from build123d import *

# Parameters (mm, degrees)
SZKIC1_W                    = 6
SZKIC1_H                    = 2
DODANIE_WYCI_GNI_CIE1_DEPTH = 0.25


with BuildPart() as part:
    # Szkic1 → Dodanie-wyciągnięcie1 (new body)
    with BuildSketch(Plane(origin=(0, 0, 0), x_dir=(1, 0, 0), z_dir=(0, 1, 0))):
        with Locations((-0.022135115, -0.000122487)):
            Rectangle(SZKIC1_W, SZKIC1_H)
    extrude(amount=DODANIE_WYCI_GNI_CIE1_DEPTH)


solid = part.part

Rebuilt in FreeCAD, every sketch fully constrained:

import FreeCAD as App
import Part
import Sketcher
from FreeCAD import Vector


def add_polygon(sketch, points):
    """Adds a closed chain of lines whose ends are joined by coincident constraints."""
    first, n = sketch.GeometryCount, len(points)
    for a, b in zip(points, points[1:] + points[:1]):
        sketch.addGeometry(Part.LineSegment(App.Vector(*a, 0), App.Vector(*b, 0)), False)
    for i in range(n):
        sketch.addConstraint(Sketcher.Constraint("Coincident", first + i, 2, first + (i + 1) % n, 1))

doc = App.newDocument("Part")
params = doc.addObject("Spreadsheet::Sheet", "Params")
for row, (alias, value) in enumerate([
    ("sketch1_width", "6 mm"),
    ("sketch1_height", "2 mm"),
    ("pad1_length", "0.25 mm"),
], start=1):
    params.set(f"A{row}", alias)
    params.set(f"B{row}", "=" + value)
    params.setAlias(f"B{row}", alias)

body = doc.addObject("PartDesign::Body", "Body")

# Sketch on XZ plane
sketch1 = body.newObject("Sketcher::SketchObject", "Sketch")
sketch1.AttachmentSupport = (doc.getObject("XZ_Plane"), [""])
sketch1.MapMode = "FlatFace"
add_polygon(sketch1, [(-3, -1), (-3, 1), (3, 1), (3, -1)])  # lines 0-3
sketch1.addConstraint([
    Sketcher.Constraint("Vertical", 0),
    Sketcher.Constraint("Horizontal", 1),
    Sketcher.Constraint("Vertical", 2),
    Sketcher.Constraint("Horizontal", 3),
    Sketcher.Constraint("DistanceX", 1, 1, 1, 2, 6.0),
    Sketcher.Constraint("DistanceY", 0, 1, 0, 2, 2.0),
    Sketcher.Constraint("DistanceX", 0, 2, -1, 1, 3.022135),
    Sketcher.Constraint("DistanceY", -1, 1, 0, 2, 1.000122),
])
sketch1.setExpression("Constraints[8]", "Params.sketch1_width")
sketch1.setExpression("Constraints[9]", "Params.sketch1_height")
pad1 = body.newObject("PartDesign::Pad", "Pad")
pad1.Profile = sketch1
pad1.setExpression("Length", "Params.pad1_length")
pad1.Reversed = True

doc.recompute()
